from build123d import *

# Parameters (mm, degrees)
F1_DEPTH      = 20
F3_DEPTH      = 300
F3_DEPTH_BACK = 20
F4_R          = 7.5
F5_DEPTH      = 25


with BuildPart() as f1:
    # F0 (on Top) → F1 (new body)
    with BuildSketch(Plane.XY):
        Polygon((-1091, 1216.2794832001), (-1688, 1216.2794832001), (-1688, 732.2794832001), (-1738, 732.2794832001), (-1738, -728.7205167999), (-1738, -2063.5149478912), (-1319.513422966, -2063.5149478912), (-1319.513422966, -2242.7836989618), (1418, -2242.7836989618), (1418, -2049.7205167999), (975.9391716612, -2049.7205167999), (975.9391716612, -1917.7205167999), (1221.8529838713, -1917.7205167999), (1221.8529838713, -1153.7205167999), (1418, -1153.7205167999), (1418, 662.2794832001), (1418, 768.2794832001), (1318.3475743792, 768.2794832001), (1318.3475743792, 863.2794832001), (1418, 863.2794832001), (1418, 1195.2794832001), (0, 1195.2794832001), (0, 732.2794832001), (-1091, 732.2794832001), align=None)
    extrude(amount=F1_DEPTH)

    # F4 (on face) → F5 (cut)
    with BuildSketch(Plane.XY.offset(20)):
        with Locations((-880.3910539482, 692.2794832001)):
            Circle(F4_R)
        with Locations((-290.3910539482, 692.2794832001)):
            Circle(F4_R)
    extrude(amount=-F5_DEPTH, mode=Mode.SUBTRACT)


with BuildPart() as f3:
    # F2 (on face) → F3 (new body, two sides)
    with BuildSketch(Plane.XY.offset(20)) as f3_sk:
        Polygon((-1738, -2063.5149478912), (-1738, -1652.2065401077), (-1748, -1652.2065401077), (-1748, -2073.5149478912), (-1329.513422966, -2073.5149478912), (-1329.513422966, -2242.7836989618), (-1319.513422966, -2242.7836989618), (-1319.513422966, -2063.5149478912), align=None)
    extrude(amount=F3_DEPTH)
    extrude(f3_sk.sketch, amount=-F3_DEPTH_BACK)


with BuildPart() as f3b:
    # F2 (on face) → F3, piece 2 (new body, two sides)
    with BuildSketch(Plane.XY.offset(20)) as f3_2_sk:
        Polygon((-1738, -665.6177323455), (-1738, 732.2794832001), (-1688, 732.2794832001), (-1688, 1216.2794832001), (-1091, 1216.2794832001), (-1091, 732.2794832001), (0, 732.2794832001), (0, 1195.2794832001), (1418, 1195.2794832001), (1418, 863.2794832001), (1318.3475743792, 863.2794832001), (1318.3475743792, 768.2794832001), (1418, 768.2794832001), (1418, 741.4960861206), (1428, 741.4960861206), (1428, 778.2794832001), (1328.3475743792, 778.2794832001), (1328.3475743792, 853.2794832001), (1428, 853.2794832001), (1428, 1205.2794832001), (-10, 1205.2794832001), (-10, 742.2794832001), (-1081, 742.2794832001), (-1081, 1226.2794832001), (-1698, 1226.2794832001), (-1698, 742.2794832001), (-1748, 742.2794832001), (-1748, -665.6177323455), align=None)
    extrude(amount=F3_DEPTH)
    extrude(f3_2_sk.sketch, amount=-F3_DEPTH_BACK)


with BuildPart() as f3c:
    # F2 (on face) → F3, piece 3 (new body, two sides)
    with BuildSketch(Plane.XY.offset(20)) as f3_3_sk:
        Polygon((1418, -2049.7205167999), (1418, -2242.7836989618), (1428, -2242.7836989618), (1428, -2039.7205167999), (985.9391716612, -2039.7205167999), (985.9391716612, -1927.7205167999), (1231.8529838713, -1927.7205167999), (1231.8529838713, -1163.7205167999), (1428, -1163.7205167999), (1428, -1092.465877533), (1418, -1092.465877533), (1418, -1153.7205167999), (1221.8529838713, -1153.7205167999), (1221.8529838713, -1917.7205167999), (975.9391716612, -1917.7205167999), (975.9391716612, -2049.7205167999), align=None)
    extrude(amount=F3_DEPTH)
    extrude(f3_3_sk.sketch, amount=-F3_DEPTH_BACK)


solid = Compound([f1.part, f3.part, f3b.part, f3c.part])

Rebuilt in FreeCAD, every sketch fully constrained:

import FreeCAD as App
import Part
import Sketcher
from FreeCAD import Vector
Q = App.Units.Quantity


def add_polygon(sketch, points):
    """Adds a closed chain of lines whose ends are joined by coincident constraints."""
    first, n = sketch.GeometryCount, len(points)
    for a, b in zip(points, points[1:] + points[:1]):
        sketch.addGeometry(Part.LineSegment(App.Vector(*a, 0), App.Vector(*b, 0)), False)
    for i in range(n):
        sketch.addConstraint(Sketcher.Constraint("Coincident", first + i, 2, first + (i + 1) % n, 1))

doc = App.newDocument("Part")
body = doc.addObject("PartDesign::Body", "Body")

# Sketch on XY plane
sketch1 = body.newObject("Sketcher::SketchObject", "Sketch")
sketch1.AttachmentSupport = (doc.getObject("XY_Plane"), [""])
sketch1.MapMode = "FlatFace"
add_polygon(sketch1, [(-1091, 1216), (-1688, 1216), (-1688, 732), (-1738, 732), (-1738, -2064), (-1320, -2064), (-1320, -2243), (1418, -2243), (1418, -2050), (976, -2050), (976, -1918), (1222, -1918), (1222, -1154), (1418, -1154), (1418, 768), (1318, 768), (1318, 863), (1418, 863), (1418, 1195), (0, 1195), (0, 732), (-1091, 732)])  # lines 0-21
sketch1.addConstraint(Sketcher.Constraint("Horizontal", 0))
sketch1.addConstraint(Sketcher.Constraint("Vertical", 1))
sketch1.addConstraint(Sketcher.Constraint("Horizontal", 2))
sketch1.addConstraint(Sketcher.Constraint("Vertical", 3))
sketch1.addConstraint(Sketcher.Constraint("Horizontal", 4))
sketch1.addConstraint(Sketcher.Constraint("Vertical", 5))
sketch1.addConstraint(Sketcher.Constraint("Horizontal", 6))
sketch1.addConstraint(Sketcher.Constraint("Vertical", 7))
sketch1.addConstraint(Sketcher.Constraint("Horizontal", 8))
sketch1.addConstraint(Sketcher.Constraint("Vertical", 9))
sketch1.addConstraint(Sketcher.Constraint("Horizontal", 10))
sketch1.addConstraint(Sketcher.Constraint("Vertical", 11))
sketch1.addConstraint(Sketcher.Constraint("Horizontal", 12))
sketch1.addConstraint(Sketcher.Constraint("Vertical", 13))
sketch1.addConstraint(Sketcher.Constraint("Horizontal", 14))
sketch1.addConstraint(Sketcher.Constraint("Vertical", 15))
sketch1.addConstraint(Sketcher.Constraint("Horizontal", 16))
sketch1.addConstraint(Sketcher.Constraint("Vertical", 17))
sketch1.addConstraint(Sketcher.Constraint("Horizontal", 18))
sketch1.addConstraint(Sketcher.Constraint("Vertical", 19))
sketch1.addConstraint(Sketcher.Constraint("Horizontal", 20))
sketch1.addConstraint(Sketcher.Constraint("Vertical", 21))
sketch1.addConstraint(Sketcher.Constraint("PointOnObject", 18, 2, -2))
sketch1.addConstraint(Sketcher.Constraint("Horizontal", 2, 2, 19, 2))
sketch1.addConstraint(Sketcher.Constraint("Vertical", 7, 2, 12, 2))
sketch1.addConstraint(Sketcher.Constraint("Vertical", 13, 2, 16, 2))
sketch1.addConstraint(Sketcher.Constraint("DistanceX", 0, 2, 0, 1, Q("597 mm")))
sketch1.addConstraint(Sketcher.Constraint("DistanceX", 2, 2, 2, 1, Q("50 mm")))
sketch1.addConstraint(Sketcher.Constraint("DistanceX", 18, 2, 18, 1, Q("1418 mm")))
sketch1.addConstraint(Sketcher.Constraint("DistanceX", 20, 2, 20, 1, Q("1091 mm")))
sketch1.addConstraint(Sketcher.Constraint("DistanceY", 1, 2, 1, 1, Q("484 mm")))
sketch1.addConstraint(Sketcher.Constraint("DistanceY", 9, 1, 9, 2, Q("132 mm")))
sketch1.addConstraint(Sketcher.Constraint("DistanceY", 11, 1, 11, 2, Q("764 mm")))
sketch1.addConstraint(Sketcher.Constraint("DistanceY", 13, 1, 13, 2, Q("1922 mm")))
sketch1.addConstraint(Sketcher.Constraint("DistanceY", 15, 1, 15, 2, Q("95 mm")))
sketch1.addConstraint(Sketcher.Constraint("DistanceY", 17, 1, 17, 2, Q("332 mm")))
sketch1.addConstraint(Sketcher.Constraint("DistanceY", 19, 2, 19, 1, Q("463 mm")))
sketch1.addConstraint(Sketcher.Constraint("DistanceX", 8, 2, 8, 1, Q("442.060828 mm")))
sketch1.addConstraint(Sketcher.Constraint("DistanceY", 3, 2, 3, 1, Q("2795.794431 mm")))
sketch1.addConstraint(Sketcher.Constraint("DistanceY", 5, 2, 5, 1, Q("179.268751 mm")))
sketch1.addConstraint(Sketcher.Constraint("DistanceY", 5, 2, -1, 1, Q("2242.783699 mm")))
sketch1.addConstraint(Sketcher.Constraint("DistanceX", 4, 1, 4, 2, Q("418.486577 mm")))
sketch1.addConstraint(Sketcher.Constraint("DistanceX", 10, 1, 10, 2, Q("245.913812 mm")))
sketch1.addConstraint(Sketcher.Constraint("DistanceX", 14, 2, 14, 1, Q("99.652426 mm")))
pad1 = body.newObject("PartDesign::Pad", "Pad")
pad1.Profile = sketch1
pad1.Length = 20

# Sketch on XY plane
sketch2 = body.newObject("Sketcher::SketchObject", "Sketch001")
sketch2.AttachmentSupport = (doc.getObject("XY_Plane"), [""])
sketch2.MapMode = "FlatFace"
sketch2.AttachmentOffset = App.Placement(Vector(0, 0, 20), App.Rotation())
sketch2.addGeometry(Part.Circle(Vector(-880, 692, 0), Vector(0, 0, 1), 8), False)
sketch2.addGeometry(Part.Circle(Vector(-290, 692, 0), Vector(0, 0, 1), 8), False)
sketch2.addConstraint(Sketcher.Constraint("Equal", 0, 1))
sketch2.addConstraint(Sketcher.Constraint("Horizontal", 0, 3, 1, 3))
sketch2.addConstraint(Sketcher.Constraint("Diameter", 0, Q("15 mm")))
sketch2.addConstraint(Sketcher.Constraint("DistanceX", 0, 3, 1, 3, Q("590 mm")))
sketch2.addConstraint(Sketcher.Constraint("DistanceX", 0, 3, -1, 1, Q("880.391054 mm")))
sketch2.addConstraint(Sketcher.Constraint("DistanceY", -1, 1, 0, 3, Q("692.279483 mm")))
pocket1 = body.newObject("PartDesign::Pocket", "Pocket")
pocket1.Profile = sketch2
pocket1.Length = 25
body2 = doc.addObject("PartDesign::Body", "Body001")

# Sketch on XY plane
sketch3 = body2.newObject("Sketcher::SketchObject", "Sketch002")
sketch3.AttachmentSupport = (doc.getObject("XY_Plane001"), [""])
sketch3.MapMode = "FlatFace"
sketch3.AttachmentOffset = App.Placement(Vector(0, 0, 20), App.Rotation())
add_polygon(sketch3, [(-1738, -2064), (-1738, -1652), (-1748, -1652), (-1748, -2074), (-1330, -2074), (-1330, -2243), (-1320, -2243), (-1320, -2064)])  # lines 0-7
sketch3.addConstraint(Sketcher.Constraint("Vertical", 0))
sketch3.addConstraint(Sketcher.Constraint("Horizontal", 1))
sketch3.addConstraint(Sketcher.Constraint("Vertical", 2))
sketch3.addConstraint(Sketcher.Constraint("Horizontal", 3))
sketch3.addConstraint(Sketcher.Constraint("Vertical", 4))
sketch3.addConstraint(Sketcher.Constraint("Horizontal", 5))
sketch3.addConstraint(Sketcher.Constraint("Vertical", 6))
sketch3.addConstraint(Sketcher.Constraint("Horizontal", 7))
sketch3.addConstraint(Sketcher.Constraint("Equal", 1, 5))
sketch3.addConstraint(Sketcher.Constraint("DistanceX", 1, 2, 1, 1, Q("10 mm")))
sketch3.addConstraint(Sketcher.Constraint("DistanceX", 0, 2, -1, 1, Q("1738 mm")))
sketch3.addConstraint(Sketcher.Constraint("DistanceY", 3, 2, 6, 2, Q("10 mm")))
sketch3.addConstraint(Sketcher.Constraint("DistanceY", 4, 2, 4, 1, Q("169.268751 mm")))
sketch3.addConstraint(Sketcher.Constraint("DistanceY", 4, 2, -1, 1, Q("2242.783699 mm")))
sketch3.addConstraint(Sketcher.Constraint("DistanceX", 3, 1, 3, 2, Q("418.486577 mm")))
sketch3.addConstraint(Sketcher.Constraint("DistanceY", 0, 1, 0, 2, Q("411.308408 mm")))
pad2 = body2.newObject("PartDesign::Pad", "Pad001")
pad2.Profile = sketch3
pad2.Type = "TwoLengths"
pad2.Length = 300
pad2.Length2 = 20
body3 = doc.addObject("PartDesign::Body", "Body002")

# Sketch on XY plane
sketch4 = body3.newObject("Sketcher::SketchObject", "Sketch003")
sketch4.AttachmentSupport = (doc.getObject("XY_Plane002"), [""])
sketch4.MapMode = "FlatFace"
sketch4.AttachmentOffset = App.Placement(Vector(0, 0, 20), App.Rotation())
add_polygon(sketch4, [(-1738, -666), (-1738, 732), (-1688, 732), (-1688, 1216), (-1091, 1216), (-1091, 732), (0, 732), (0, 1195), (1418, 1195), (1418, 863), (1318, 863), (1318, 768), (1418, 768), (1418, 741), (1428, 741), (1428, 778), (1328, 778), (1328, 853), (1428, 853), (1428, 1205), (-10, 1205), (-10, 742), (-1081, 742), (-1081, 1226), (-1698, 1226), (-1698, 742), (-1748, 742), (-1748, -666)])  # lines 0-27
sketch4.addConstraint(Sketcher.Constraint("Vertical", 0))
sketch4.addConstraint(Sketcher.Constraint("Horizontal", 1))
sketch4.addConstraint(Sketcher.Constraint("Vertical", 2))
sketch4.addConstraint(Sketcher.Constraint("Horizontal", 3))
sketch4.addConstraint(Sketcher.Constraint("Vertical", 4))
sketch4.addConstraint(Sketcher.Constraint("Horizontal", 5))
sketch4.addConstraint(Sketcher.Constraint("Vertical", 6))
sketch4.addConstraint(Sketcher.Constraint("Horizontal", 7))
sketch4.addConstraint(Sketcher.Constraint("Vertical", 8))
sketch4.addConstraint(Sketcher.Constraint("Horizontal", 9))
sketch4.addConstraint(Sketcher.Constraint("Vertical", 10))
sketch4.addConstraint(Sketcher.Constraint("Horizontal", 11))
sketch4.addConstraint(Sketcher.Constraint("Vertical", 12))
sketch4.addConstraint(Sketcher.Constraint("Horizontal", 13))
sketch4.addConstraint(Sketcher.Constraint("Vertical", 14))
sketch4.addConstraint(Sketcher.Constraint("Horizontal", 15))
sketch4.addConstraint(Sketcher.Constraint("Vertical", 16))
sketch4.addConstraint(Sketcher.Constraint("Horizontal", 17))
sketch4.addConstraint(Sketcher.Constraint("Vertical", 18))
sketch4.addConstraint(Sketcher.Constraint("Horizontal", 19))
sketch4.addConstraint(Sketcher.Constraint("Vertical", 20))
sketch4.addConstraint(Sketcher.Constraint("Horizontal", 21))
sketch4.addConstraint(Sketcher.Constraint("Vertical", 22))
sketch4.addConstraint(Sketcher.Constraint("Horizontal", 23))
sketch4.addConstraint(Sketcher.Constraint("Vertical", 24))
sketch4.addConstraint(Sketcher.Constraint("Horizontal", 25))
sketch4.addConstraint(Sketcher.Constraint("Vertical", 26))
sketch4.addConstraint(Sketcher.Constraint("Horizontal", 27))
sketch4.addConstraint(Sketcher.Constraint("PointOnObject", 5, 2, -2))
sketch4.addConstraint(Sketcher.Constraint("Horizontal", 1, 2, 4, 2))
sketch4.addConstraint(Sketcher.Constraint("Horizontal", 21, 2, 24, 2))
sketch4.addConstraint(Sketcher.Constraint("Vertical", 8, 2, 11, 2))
sketch4.addConstraint(Sketcher.Constraint("Vertical", 14, 2, 17, 2))
sketch4.addConstraint(Sketcher.Constraint("Equal", 11, 15))
sketch4.addConstraint(Sketcher.Constraint("Equal", 1, 25))
sketch4.addConstraint(Sketcher.Constraint("Equal", 13, 27))
sketch4.addConstraint(Sketcher.Constraint("Equal", 6, 20))
sketch4.addConstraint(Sketcher.Constraint("Equal", 4, 22))
sketch4.addConstraint(Sketcher.Constraint("DistanceX", 1, 1, 1, 2, Q("50 mm")))
sketch4.addConstraint(Sketcher.Constraint("DistanceX", 3, 1, 3, 2, Q("597 mm")))
sketch4.addConstraint(Sketcher.Constraint("DistanceX", 5, 1, 5, 2, Q("1091 mm")))
sketch4.addConstraint(Sketcher.Constraint("DistanceX", 7, 1, 7, 2, Q("1418 mm")))
sketch4.addConstraint(Sketcher.Constraint("DistanceX", 13, 1, 13, 2, Q("10 mm")))
sketch4.addConstraint(Sketcher.Constraint("DistanceX", 19, 2, 19, 1, Q("1438 mm")))
sketch4.addConstraint(Sketcher.Constraint("DistanceX", 21, 2, 21, 1, Q("1071 mm")))
sketch4.addConstraint(Sketcher.Constraint("DistanceY", 2, 1, 2, 2, Q("484 mm")))
sketch4.addConstraint(Sketcher.Constraint("DistanceY", 6, 1, 6, 2, Q("463 mm")))
sketch4.addConstraint(Sketcher.Constraint("DistanceY", 8, 2, 8, 1, Q("332 mm")))
sketch4.addConstraint(Sketcher.Constraint("DistanceY", 10, 2, 10, 1, Q("95 mm")))
sketch4.addConstraint(Sketcher.Constraint("DistanceY", 16, 1, 16, 2, Q("75 mm")))
sketch4.addConstraint(Sketcher.Constraint("DistanceY", 18, 1, 18, 2, Q("352 mm")))
sketch4.addConstraint(Sketcher.Constraint("DistanceY", 11, 2, 14, 2, Q("10 mm")))
sketch4.addConstraint(Sketcher.Constraint("DistanceX", 9, 2, 9, 1, Q("99.652426 mm")))
sketch4.addConstraint(Sketcher.Constraint("DistanceY", 0, 1, 0, 2, Q("1397.897216 mm")))
sketch4.addConstraint(Sketcher.Constraint("DistanceY", 12, 2, 12, 1, Q("26.783397 mm")))
sketch4.addConstraint(Sketcher.Constraint("DistanceY", -1, 1, 0, 2, Q("732.279483 mm")))
pad3 = body3.newObject("PartDesign::Pad", "Pad002")
pad3.Profile = sketch4
pad3.Type = "TwoLengths"
pad3.Length = 300
pad3.Length2 = 20
body4 = doc.addObject("PartDesign::Body", "Body003")

# Sketch on XY plane
sketch5 = body4.newObject("Sketcher::SketchObject", "Sketch004")
sketch5.AttachmentSupport = (doc.getObject("XY_Plane003"), [""])
sketch5.MapMode = "FlatFace"
sketch5.AttachmentOffset = App.Placement(Vector(0, 0, 20), App.Rotation())
add_polygon(sketch5, [(1418, -2050), (1418, -2243), (1428, -2243), (1428, -2040), (986, -2040), (986, -1928), (1232, -1928), (1232, -1164), (1428, -1164), (1428, -1092), (1418, -1092), (1418, -1154), (1222, -1154), (1222, -1918), (976, -1918), (976, -2050)])  # lines 0-15
sketch5.addConstraint(Sketcher.Constraint("Vertical", 0))
sketch5.addConstraint(Sketcher.Constraint("Horizontal", 1))
sketch5.addConstraint(Sketcher.Constraint("Vertical", 2))
sketch5.addConstraint(Sketcher.Constraint("Horizontal", 3))
sketch5.addConstraint(Sketcher.Constraint("Vertical", 4))
sketch5.addConstraint(Sketcher.Constraint("Horizontal", 5))
sketch5.addConstraint(Sketcher.Constraint("Vertical", 6))
sketch5.addConstraint(Sketcher.Constraint("Horizontal", 7))
sketch5.addConstraint(Sketcher.Constraint("Vertical", 8))
sketch5.addConstraint(Sketcher.Constraint("Horizontal", 9))
sketch5.addConstraint(Sketcher.Constraint("Vertical", 10))
sketch5.addConstraint(Sketcher.Constraint("Horizontal", 11))
sketch5.addConstraint(Sketcher.Constraint("Vertical", 12))
sketch5.addConstraint(Sketcher.Constraint("Horizontal", 13))
sketch5.addConstraint(Sketcher.Constraint("Vertical", 14))
sketch5.addConstraint(Sketcher.Constraint("Horizontal", 15))
sketch5.addConstraint(Sketcher.Constraint("Vertical", 2, 2, 7, 2))
sketch5.addConstraint(Sketcher.Constraint("Vertical", 0, 2, 9, 2))
sketch5.addConstraint(Sketcher.Constraint("Equal", 7, 11))
sketch5.addConstraint(Sketcher.Constraint("Equal", 5, 13))
sketch5.addConstraint(Sketcher.Constraint("Equal", 6, 12))
sketch5.addConstraint(Sketcher.Constraint("DistanceX", 1, 1, 1, 2, Q("10 mm")))
sketch5.addConstraint(Sketcher.Constraint("DistanceY", 4, 1, 4, 2, Q("112 mm")))
sketch5.addConstraint(Sketcher.Constraint("DistanceY", 6, 1, 6, 2, Q("764 mm")))
sketch5.addConstraint(Sketcher.Constraint("DistanceY", 14, 2, 14, 1, Q("132 mm")))
sketch5.addConstraint(Sketcher.Constraint("DistanceX", -1, 1, 0, 2, Q("1418 mm")))
sketch5.addConstraint(Sketcher.Constraint("DistanceY", 7, 2, 10, 2, Q("10 mm")))
sketch5.addConstraint(Sketcher.Constraint("DistanceX", 3, 2, 3, 1, Q("442.060828 mm")))
sketch5.addConstraint(Sketcher.Constraint("DistanceY", 8, 1, 8, 2, Q("71.254639 mm")))
sketch5.addConstraint(Sketcher.Constraint("DistanceY", 0, 2, -1, 1, Q("2242.783699 mm")))
sketch5.addConstraint(Sketcher.Constraint("DistanceX", 5, 1, 5, 2, Q("245.913812 mm")))
sketch5.addConstraint(Sketcher.Constraint("DistanceY", 0, 2, 0, 1, Q("193.063182 mm")))
pad4 = body4.newObject("PartDesign::Pad", "Pad003")
pad4.Profile = sketch5
pad4.Type = "TwoLengths"
pad4.Length = 300
pad4.Length2 = 20

doc.recompute()
